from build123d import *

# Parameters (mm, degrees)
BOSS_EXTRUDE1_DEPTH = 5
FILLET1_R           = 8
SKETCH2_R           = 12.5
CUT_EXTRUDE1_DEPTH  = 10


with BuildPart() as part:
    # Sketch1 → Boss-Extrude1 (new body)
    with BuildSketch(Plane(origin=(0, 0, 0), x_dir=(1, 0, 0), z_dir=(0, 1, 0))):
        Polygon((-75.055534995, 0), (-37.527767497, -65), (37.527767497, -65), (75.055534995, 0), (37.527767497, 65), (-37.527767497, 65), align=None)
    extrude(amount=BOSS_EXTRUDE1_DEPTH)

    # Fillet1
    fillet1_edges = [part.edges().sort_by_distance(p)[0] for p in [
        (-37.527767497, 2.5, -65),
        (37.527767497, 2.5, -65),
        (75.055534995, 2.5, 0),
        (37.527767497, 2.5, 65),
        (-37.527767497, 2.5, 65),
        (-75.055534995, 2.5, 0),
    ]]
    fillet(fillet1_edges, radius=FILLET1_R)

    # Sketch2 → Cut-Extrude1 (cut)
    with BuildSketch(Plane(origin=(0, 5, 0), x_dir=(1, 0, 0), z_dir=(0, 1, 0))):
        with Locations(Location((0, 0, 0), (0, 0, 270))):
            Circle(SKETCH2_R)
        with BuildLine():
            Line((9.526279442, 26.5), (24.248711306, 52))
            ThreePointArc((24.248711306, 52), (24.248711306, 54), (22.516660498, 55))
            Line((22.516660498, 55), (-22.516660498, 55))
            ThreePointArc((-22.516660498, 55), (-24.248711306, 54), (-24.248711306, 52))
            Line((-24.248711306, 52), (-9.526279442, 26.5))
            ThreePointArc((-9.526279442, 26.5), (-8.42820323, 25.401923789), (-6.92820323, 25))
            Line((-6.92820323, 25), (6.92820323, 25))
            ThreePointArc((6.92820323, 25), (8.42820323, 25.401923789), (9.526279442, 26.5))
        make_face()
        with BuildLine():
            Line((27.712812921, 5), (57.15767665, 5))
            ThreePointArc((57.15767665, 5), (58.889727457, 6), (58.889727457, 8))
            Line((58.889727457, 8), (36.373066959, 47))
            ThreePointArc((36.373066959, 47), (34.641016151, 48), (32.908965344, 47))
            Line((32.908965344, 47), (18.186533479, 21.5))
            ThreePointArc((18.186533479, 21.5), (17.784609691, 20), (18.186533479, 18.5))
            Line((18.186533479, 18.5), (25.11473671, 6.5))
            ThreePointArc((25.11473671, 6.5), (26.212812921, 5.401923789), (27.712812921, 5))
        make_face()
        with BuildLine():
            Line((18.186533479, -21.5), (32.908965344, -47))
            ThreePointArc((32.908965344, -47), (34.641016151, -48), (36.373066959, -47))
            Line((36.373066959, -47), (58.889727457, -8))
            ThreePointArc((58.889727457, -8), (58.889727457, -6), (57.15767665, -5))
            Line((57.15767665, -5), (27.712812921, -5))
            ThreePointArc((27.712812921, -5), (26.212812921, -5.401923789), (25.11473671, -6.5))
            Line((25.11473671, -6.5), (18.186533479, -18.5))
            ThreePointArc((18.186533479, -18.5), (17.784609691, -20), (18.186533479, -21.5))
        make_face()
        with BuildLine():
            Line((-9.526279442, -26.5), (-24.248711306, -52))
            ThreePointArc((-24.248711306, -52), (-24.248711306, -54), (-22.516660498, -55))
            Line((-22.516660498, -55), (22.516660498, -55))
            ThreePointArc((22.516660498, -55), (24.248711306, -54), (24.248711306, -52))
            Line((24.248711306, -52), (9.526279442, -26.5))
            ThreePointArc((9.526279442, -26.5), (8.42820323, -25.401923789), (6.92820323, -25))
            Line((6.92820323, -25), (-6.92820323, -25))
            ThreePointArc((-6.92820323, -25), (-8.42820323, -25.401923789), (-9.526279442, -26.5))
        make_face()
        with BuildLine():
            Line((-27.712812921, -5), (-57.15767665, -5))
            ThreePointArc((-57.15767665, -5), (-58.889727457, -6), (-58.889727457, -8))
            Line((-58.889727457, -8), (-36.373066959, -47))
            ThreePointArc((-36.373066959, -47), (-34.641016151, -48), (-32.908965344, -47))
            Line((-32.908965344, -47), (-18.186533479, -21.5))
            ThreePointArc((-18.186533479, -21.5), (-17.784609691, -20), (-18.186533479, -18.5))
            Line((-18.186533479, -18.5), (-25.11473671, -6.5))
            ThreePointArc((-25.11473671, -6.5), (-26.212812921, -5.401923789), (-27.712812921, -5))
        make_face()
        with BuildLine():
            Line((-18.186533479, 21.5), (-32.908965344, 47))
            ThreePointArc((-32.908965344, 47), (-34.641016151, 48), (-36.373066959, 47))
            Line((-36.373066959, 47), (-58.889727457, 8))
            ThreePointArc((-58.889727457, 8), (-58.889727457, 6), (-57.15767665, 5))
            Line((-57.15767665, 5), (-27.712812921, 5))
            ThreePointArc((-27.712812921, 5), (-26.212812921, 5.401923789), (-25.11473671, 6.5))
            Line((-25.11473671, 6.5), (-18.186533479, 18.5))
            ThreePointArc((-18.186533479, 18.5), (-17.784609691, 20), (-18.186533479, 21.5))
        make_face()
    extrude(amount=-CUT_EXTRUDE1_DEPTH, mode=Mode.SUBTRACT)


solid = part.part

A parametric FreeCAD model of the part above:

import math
import FreeCAD as App
import Part
import Sketcher

V = App.Vector
Q = App.Units.Quantity


def edges_at(feature, points):
    """Names of the edges that pass closest to the given points."""
    edges = feature.Shape.Edges
    near = lambda p: min(range(len(edges)), key=lambda i: edges[i].distToShape(Part.Vertex(*p))[0])
    return sorted({f"Edge{near(p) + 1}" for p in points})


def add_polygon(sketch, points):
    """Adds a closed chain of lines whose ends are joined by coincident constraints."""
    first, n = sketch.GeometryCount, len(points)
    for a, b in zip(points, points[1:] + points[:1]):
        sketch.addGeometry(Part.LineSegment(App.Vector(*a, 0), App.Vector(*b, 0)), False)
    for i in range(n):
        sketch.addConstraint(Sketcher.Constraint("Coincident", first + i, 2, first + (i + 1) % n, 1))

doc = App.newDocument("Part")
body = doc.addObject("PartDesign::Body", "Body")

sketch1 = body.newObject("Sketcher::SketchObject", "Sketch")
sketch1.AttachmentSupport = (doc.getObject("XZ_Plane"), [""])
sketch1.MapMode = "FlatFace"
add_polygon(sketch1, [(-75, 0), (-38, 65), (38, 65), (75, 0), (38, -65), (-38, -65)])
sketch1.addConstraint([
    Sketcher.Constraint("Horizontal", 1),
    Sketcher.Constraint("Horizontal", 4),
    Sketcher.Constraint("Symmetric", 0, 2, 3, 2, -1, 1),
    Sketcher.Constraint("Symmetric", 2, 2, 5, 2, -1, 1),
    Sketcher.Constraint("PointOnObject", 2, 2, -1),
    Sketcher.Constraint("Parallel", 2, 5),
    Sketcher.Constraint("Vertical", 1, 2, 3, 2),
    Sketcher.Constraint("Angle", 0, Q("60 deg")),
    Sketcher.Constraint("DistanceY", -1, 1, 0, 2, Q("65 mm")),
    Sketcher.Constraint("DistanceX", 1, 1, 1, 2, Q("75.055535 mm")),
])
pad1 = body.newObject("PartDesign::Pad", "Pad")
pad1.Profile = sketch1
pad1.Length = 5
pad1.Reversed = True
doc.recompute()

fillet = body.newObject("PartDesign::Fillet", "Fillet")
fillet.Base = (pad1, edges_at(pad1, [
    (-37.528, 2.5, -65),
    (37.528, 2.5, -65),
    (75.056, 2.5, 0),
    (37.528, 2.5, 65),
    (-37.528, 2.5, 65),
    (-75.056, 2.5, 0),
]))
fillet.Radius = 8

sketch2 = body.newObject("Sketcher::SketchObject", "Sketch001")
sketch2.AttachmentSupport = (doc.getObject("XZ_Plane"), [""])
sketch2.MapMode = "FlatFace"
sketch2.AttachmentOffset = App.Placement(V(0, 0, -5), App.Rotation())
sketch2.addGeometry([
    Part.Circle(V(0, 0, 0), V(0, 0, 1), 12.5),
    Part.LineSegment(V(9.5, -26.5, 0), V(24.2, -52, 0)),
    Part.ArcOfCircle(Part.Circle(V(22.5, -53, 0), V(0, 0, 1), 2), math.radians(-90), math.radians(30)),
    Part.LineSegment(V(22.5, -55, 0), V(-22.5, -55, 0)),
    Part.ArcOfCircle(Part.Circle(V(-22.5, -53, 0), V(0, 0, 1), 2), math.radians(150), math.radians(270)),
    Part.LineSegment(V(-24.2, -52, 0), V(-9.5, -26.5, 0)),
    Part.ArcOfCircle(Part.Circle(V(-6.9, -28, 0), V(0, 0, 1), 3), math.radians(90), math.radians(150)),
    Part.LineSegment(V(-6.9, -25, 0), V(6.9, -25, 0)),
    Part.ArcOfCircle(Part.Circle(V(6.9, -28, 0), V(0, 0, 1), 3), math.radians(30), math.radians(90)),
    Part.LineSegment(V(27.7, -5, 0), V(57.2, -5, 0)),
    Part.ArcOfCircle(Part.Circle(V(57.2, -7, 0), V(0, 0, 1), 2), math.radians(-30), math.radians(90)),
    Part.LineSegment(V(58.9, -8, 0), V(36.4, -47, 0)),
    Part.ArcOfCircle(Part.Circle(V(34.6, -46, 0), V(0, 0, 1), 2), math.radians(-150), math.radians(-30)),
    Part.LineSegment(V(32.9, -47, 0), V(18.2, -21.5, 0)),
    Part.ArcOfCircle(Part.Circle(V(20.8, -20, 0), V(0, 0, 1), 3), math.radians(150), math.radians(210)),
    Part.LineSegment(V(18.2, -18.5, 0), V(25.1, -6.5, 0)),
    Part.ArcOfCircle(Part.Circle(V(27.7, -8, 0), V(0, 0, 1), 3), math.radians(90), math.radians(150)),
    Part.LineSegment(V(18.2, 21.5, 0), V(32.9, 47, 0)),
    Part.ArcOfCircle(Part.Circle(V(34.6, 46, 0), V(0, 0, 1), 2), math.radians(30), math.radians(150)),
    Part.LineSegment(V(36.4, 47, 0), V(58.9, 8, 0)),
    Part.ArcOfCircle(Part.Circle(V(57.2, 7, 0), V(0, 0, 1), 2), math.radians(-90), math.radians(30)),
    Part.LineSegment(V(57.2, 5, 0), V(27.7, 5, 0)),
    Part.ArcOfCircle(Part.Circle(V(27.7, 8, 0), V(0, 0, 1), 3), math.radians(-150), math.radians(-90)),
    Part.LineSegment(V(25.1, 6.5, 0), V(18.2, 18.5, 0)),
    Part.ArcOfCircle(Part.Circle(V(20.8, 20, 0), V(0, 0, 1), 3), math.radians(150), math.radians(210)),
    Part.LineSegment(V(-9.5, 26.5, 0), V(-24.2, 52, 0)),
    Part.ArcOfCircle(Part.Circle(V(-22.5, 53, 0), V(0, 0, 1), 2), math.radians(90), math.radians(210)),
    Part.LineSegment(V(-22.5, 55, 0), V(22.5, 55, 0)),
    Part.ArcOfCircle(Part.Circle(V(22.5, 53, 0), V(0, 0, 1), 2), math.radians(-30), math.radians(90)),
    Part.LineSegment(V(24.2, 52, 0), V(9.5, 26.5, 0)),
    Part.ArcOfCircle(Part.Circle(V(6.9, 28, 0), V(0, 0, 1), 3), math.radians(-90), math.radians(-30)),
    Part.LineSegment(V(6.9, 25, 0), V(-6.9, 25, 0)),
    Part.ArcOfCircle(Part.Circle(V(-6.9, 28, 0), V(0, 0, 1), 3), math.radians(-150), math.radians(-90)),
    Part.LineSegment(V(-27.7, 5, 0), V(-57.2, 5, 0)),
    Part.ArcOfCircle(Part.Circle(V(-57.2, 7, 0), V(0, 0, 1), 2), math.radians(150), math.radians(270)),
    Part.LineSegment(V(-58.9, 8, 0), V(-36.4, 47, 0)),
    Part.ArcOfCircle(Part.Circle(V(-34.6, 46, 0), V(0, 0, 1), 2), math.radians(30), math.radians(150)),
    Part.LineSegment(V(-32.9, 47, 0), V(-18.2, 21.5, 0)),
    Part.ArcOfCircle(Part.Circle(V(-20.8, 20, 0), V(0, 0, 1), 3), math.radians(-30), math.radians(30)),
    Part.LineSegment(V(-18.2, 18.5, 0), V(-25.1, 6.5, 0)),
    Part.ArcOfCircle(Part.Circle(V(-27.7, 8, 0), V(0, 0, 1), 3), math.radians(-90), math.radians(-30)),
    Part.LineSegment(V(-18.2, -21.5, 0), V(-32.9, -47, 0)),
    Part.ArcOfCircle(Part.Circle(V(-34.6, -46, 0), V(0, 0, 1), 2), math.radians(-150), math.radians(-30)),
    Part.LineSegment(V(-36.4, -47, 0), V(-58.9, -8, 0)),
    Part.ArcOfCircle(Part.Circle(V(-57.2, -7, 0), V(0, 0, 1), 2), math.radians(90), math.radians(210)),
    Part.LineSegment(V(-57.2, -5, 0), V(-27.7, -5, 0)),
    Part.ArcOfCircle(Part.Circle(V(-27.7, -8, 0), V(0, 0, 1), 3), math.radians(30), math.radians(90)),
    Part.LineSegment(V(-25.1, -6.5, 0), V(-18.2, -18.5, 0)),
    Part.ArcOfCircle(Part.Circle(V(-20.8, -20, 0), V(0, 0, 1), 3), math.radians(-30), math.radians(30)),
], False)
sketch2.addConstraint([
    Sketcher.Constraint("Tangent", 1, 2, 2, 2),
    Sketcher.Constraint("Tangent", 2, 1, 3, 1),
    Sketcher.Constraint("Tangent", 3, 2, 4, 2),
    Sketcher.Constraint("Tangent", 4, 1, 5, 1),
    Sketcher.Constraint("Tangent", 5, 2, 6, 2),
    Sketcher.Constraint("Tangent", 6, 1, 7, 1),
    Sketcher.Constraint("Tangent", 7, 2, 8, 2),
    Sketcher.Constraint("Tangent", 8, 1, 1, 1),
    Sketcher.Constraint("Tangent", 9, 2, 10, 2),
    Sketcher.Constraint("Tangent", 10, 1, 11, 1),
    Sketcher.Constraint("Tangent", 11, 2, 12, 2),
    Sketcher.Constraint("Tangent", 12, 1, 13, 1),
    Sketcher.Constraint("Tangent", 13, 2, 14, 2),
    Sketcher.Constraint("Tangent", 14, 1, 15, 1),
    Sketcher.Constraint("Tangent", 15, 2, 16, 2),
    Sketcher.Constraint("Tangent", 16, 1, 9, 1),
    Sketcher.Constraint("Tangent", 17, 2, 18, 2),
    Sketcher.Constraint("Tangent", 18, 1, 19, 1),
    Sketcher.Constraint("Tangent", 19, 2, 20, 2),
    Sketcher.Constraint("Tangent", 20, 1, 21, 1),
    Sketcher.Constraint("Tangent", 21, 2, 22, 2),
    Sketcher.Constraint("Tangent", 22, 1, 23, 1),
    Sketcher.Constraint("Tangent", 23, 2, 24, 2),
    Sketcher.Constraint("Tangent", 24, 1, 17, 1),
    Sketcher.Constraint("Tangent", 25, 2, 26, 2),
    Sketcher.Constraint("Tangent", 26, 1, 27, 1),
    Sketcher.Constraint("Tangent", 27, 2, 28, 2),
    Sketcher.Constraint("Tangent", 28, 1, 29, 1),
    Sketcher.Constraint("Tangent", 29, 2, 30, 2),
    Sketcher.Constraint("Tangent", 30, 1, 31, 1),
    Sketcher.Constraint("Tangent", 31, 2, 32, 2),
    Sketcher.Constraint("Tangent", 32, 1, 25, 1),
    Sketcher.Constraint("Tangent", 33, 2, 34, 2),
    Sketcher.Constraint("Tangent", 34, 1, 35, 1),
    Sketcher.Constraint("Tangent", 35, 2, 36, 2),
    Sketcher.Constraint("Tangent", 36, 1, 37, 1),
    Sketcher.Constraint("Tangent", 37, 2, 38, 2),
    Sketcher.Constraint("Tangent", 38, 1, 39, 1),
    Sketcher.Constraint("Tangent", 39, 2, 40, 2),
    Sketcher.Constraint("Tangent", 40, 1, 33, 1),
    Sketcher.Constraint("Tangent", 41, 2, 42, 2),
    Sketcher.Constraint("Tangent", 42, 1, 43, 1),
    Sketcher.Constraint("Tangent", 43, 2, 44, 2),
    Sketcher.Constraint("Tangent", 44, 1, 45, 1),
    Sketcher.Constraint("Tangent", 45, 2, 46, 2),
    Sketcher.Constraint("Tangent", 46, 1, 47, 1),
    Sketcher.Constraint("Tangent", 47, 2, 48, 2),
    Sketcher.Constraint("Tangent", 48, 1, 41, 1),
    Sketcher.Constraint("Horizontal", 3),
    Sketcher.Constraint("Horizontal", 7),
    Sketcher.Constraint("Horizontal", 9),
    Sketcher.Constraint("Horizontal", 21),
    Sketcher.Constraint("Horizontal", 27),
    Sketcher.Constraint("Horizontal", 31),
    Sketcher.Constraint("Horizontal", 33),
    Sketcher.Constraint("Horizontal", 45),
    Sketcher.Constraint("Coincident", 0, 3, -1, 1),
    Sketcher.Constraint("Equal", 2, 4),
    Sketcher.Constraint("Equal", 6, 8),
    Sketcher.Constraint("Equal", 4, 10),
    Sketcher.Constraint("Equal", 10, 12),
    Sketcher.Constraint("Equal", 8, 14),
    Sketcher.Constraint("Equal", 14, 16),
    Sketcher.Constraint("Equal", 12, 18),
    Sketcher.Constraint("Equal", 18, 20),
    Sketcher.Constraint("Equal", 16, 22),
    Sketcher.Constraint("Equal", 22, 24),
    Sketcher.Constraint("Equal", 20, 26),
    Sketcher.Constraint("Equal", 26, 28),
    Sketcher.Constraint("Equal", 24, 30),
    Sketcher.Constraint("Equal", 30, 32),
    Sketcher.Constraint("Equal", 28, 34),
    Sketcher.Constraint("Equal", 34, 36),
    Sketcher.Constraint("Equal", 32, 38),
    Sketcher.Constraint("Equal", 38, 40),
    Sketcher.Constraint("Equal", 36, 42),
    Sketcher.Constraint("Equal", 42, 44),
    Sketcher.Constraint("Equal", 40, 46),
    Sketcher.Constraint("Equal", 46, 48),
    Sketcher.Constraint("Symmetric", 2, 3, 26, 3, -1, 1),
    Sketcher.Constraint("Symmetric", 6, 3, 30, 3, -1, 1),
    Sketcher.Constraint("Symmetric", 10, 3, 34, 3, -1, 1),
    Sketcher.Constraint("Symmetric", 12, 3, 36, 3, -1, 1),
    Sketcher.Constraint("Symmetric", 14, 3, 38, 3, -1, 1),
    Sketcher.Constraint("Symmetric", 18, 3, 42, 3, -1, 1),
    Sketcher.Constraint("Symmetric", 20, 3, 44, 3, -1, 1),
    Sketcher.Constraint("Symmetric", 24, 3, 48, 3, -1, 1),
    Sketcher.Constraint("Symmetric", 20, 3, 34, 3, -2),
    Sketcher.Constraint("Symmetric", 18, 3, 36, 3, -2),
    Sketcher.Constraint("Symmetric", 24, 3, 38, 3, -2),
    Sketcher.Constraint("Symmetric", 1, 2, 4, 1, -2),
    Sketcher.Constraint("Symmetric", 25, 2, 28, 1, -2),
    Sketcher.Constraint("Parallel", 5, 11),
    Sketcher.Constraint("Parallel", 1, 13),
    Sketcher.Constraint("Parallel", 11, 15),
    Sketcher.Constraint("Parallel", 19, 23),
    Sketcher.Constraint("Parallel", 35, 39),
    Sketcher.Constraint("Parallel", 43, 47),
    Sketcher.Constraint("Horizontal", 46, 3, 10, 1),
    Sketcher.Constraint("Equal", 5, 13),
    Sketcher.Constraint("Diameter", 0, Q("25 mm")),
    Sketcher.Constraint("Radius", 2, Q("2 mm")),
    Sketcher.Constraint("Radius", 6, Q("3 mm")),
    Sketcher.Constraint("DistanceY", 2, 3, -1, 1, Q("53 mm")),
    Sketcher.Constraint("DistanceY", 6, 3, -1, 1, Q("28 mm")),
    Sketcher.Constraint("DistanceY", 10, 3, -1, 1, Q("7 mm")),
    Sketcher.Constraint("DistanceY", 12, 3, -1, 1, Q("46 mm")),
    Sketcher.Constraint("DistanceX", 3, 2, 3, 1, Q("45.033321 mm")),
    Sketcher.Constraint("DistanceX", -1, 1, 14, 3, Q("20.78461 mm")),
])
pocket1 = body.newObject("PartDesign::Pocket", "Pocket")
pocket1.Profile = sketch2
pocket1.Length = 10
pocket1.Reversed = True

doc.recompute()
